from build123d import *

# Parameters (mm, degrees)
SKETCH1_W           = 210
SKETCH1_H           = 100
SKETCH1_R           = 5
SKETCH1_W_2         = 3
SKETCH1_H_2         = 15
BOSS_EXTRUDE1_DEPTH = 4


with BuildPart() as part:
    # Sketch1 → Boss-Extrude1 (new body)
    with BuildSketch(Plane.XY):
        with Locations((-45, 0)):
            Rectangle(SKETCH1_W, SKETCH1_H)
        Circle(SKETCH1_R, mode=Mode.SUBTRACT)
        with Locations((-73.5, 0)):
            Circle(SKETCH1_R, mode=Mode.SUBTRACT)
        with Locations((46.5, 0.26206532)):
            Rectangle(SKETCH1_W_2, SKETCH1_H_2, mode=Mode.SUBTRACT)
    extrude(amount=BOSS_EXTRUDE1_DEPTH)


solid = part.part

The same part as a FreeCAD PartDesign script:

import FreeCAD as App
import Part
import Sketcher
from FreeCAD import Vector
Q = App.Units.Quantity

doc = App.newDocument("Part")
params = doc.addObject("Spreadsheet::Sheet", "Params")
for row, (alias, value) in enumerate([
    ("sketch1_diameter", "10 mm"),
    ("sketch1_width", "210 mm"),
    ("sketch1_width2", "3 mm"),
    ("sketch1_height", "100 mm"),
    ("sketch1_height2", "15 mm"),
    ("pad1_length", "4 mm"),
], start=1):
    params.set(f"A{row}", alias)
    params.set(f"B{row}", "=" + value)
    params.setAlias(f"B{row}", alias)

body = doc.addObject("PartDesign::Body", "Body")

# Sketch on XY plane
sketch1 = body.newObject("Sketcher::SketchObject", "Sketch")
sketch1.AttachmentSupport = (doc.getObject("XY_Plane"), [""])
sketch1.MapMode = "FlatFace"
sketch1.addGeometry(Part.LineSegment(Vector(-150, 50, 0), Vector(-150, -50, 0)), False)
sketch1.addGeometry(Part.LineSegment(Vector(-150, -50, 0), Vector(60, -50, 0)), False)
sketch1.addGeometry(Part.LineSegment(Vector(60, -50, 0), Vector(60, 50, 0)), False)
sketch1.addGeometry(Part.LineSegment(Vector(60, 50, 0), Vector(-150, 50, 0)), False)
sketch1.addGeometry(Part.Circle(Vector(-73.5, 0, 0), Vector(0, 0, 1), 5), False)
sketch1.addGeometry(Part.Circle(Vector(0, 0, 0), Vector(0, 0, 1), 5), False)
sketch1.addGeometry(Part.LineSegment(Vector(48, -7.2, 0), Vector(45, -7.2, 0)), False)
sketch1.addGeometry(Part.LineSegment(Vector(45, -7.2, 0), Vector(45, 7.8, 0)), False)
sketch1.addGeometry(Part.LineSegment(Vector(45, 7.8, 0), Vector(48, 7.8, 0)), False)
sketch1.addGeometry(Part.LineSegment(Vector(48, 7.8, 0), Vector(48, -7.2, 0)), False)
sketch1.addConstraint(Sketcher.Constraint("Coincident", 0, 2, 1, 1))
sketch1.addConstraint(Sketcher.Constraint("Coincident", 1, 2, 2, 1))
sketch1.addConstraint(Sketcher.Constraint("Coincident", 2, 2, 3, 1))
sketch1.addConstraint(Sketcher.Constraint("Coincident", 3, 2, 0, 1))
sketch1.addConstraint(Sketcher.Constraint("Coincident", 6, 2, 7, 1))
sketch1.addConstraint(Sketcher.Constraint("Coincident", 7, 2, 8, 1))
sketch1.addConstraint(Sketcher.Constraint("Coincident", 8, 2, 9, 1))
sketch1.addConstraint(Sketcher.Constraint("Coincident", 9, 2, 6, 1))
sketch1.addConstraint(Sketcher.Constraint("Vertical", 0))
sketch1.addConstraint(Sketcher.Constraint("Horizontal", 1))
sketch1.addConstraint(Sketcher.Constraint("Vertical", 2))
sketch1.addConstraint(Sketcher.Constraint("Horizontal", 3))
sketch1.addConstraint(Sketcher.Constraint("Horizontal", 6))
sketch1.addConstraint(Sketcher.Constraint("Vertical", 7))
sketch1.addConstraint(Sketcher.Constraint("Horizontal", 8))
sketch1.addConstraint(Sketcher.Constraint("Vertical", 9))
sketch1.addConstraint(Sketcher.Constraint("Coincident", 5, 3, -1, 1))
sketch1.addConstraint(Sketcher.Constraint("Equal", 4, 5))
sketch1.addConstraint(Sketcher.Constraint("PointOnObject", 4, 3, -1))
sketch1.addConstraint(Sketcher.Constraint("Diameter", 4, Q("10 mm")))
sketch1.addConstraint(Sketcher.Constraint("DistanceX", 1, 1, 1, 2, Q("210 mm")))
sketch1.addConstraint(Sketcher.Constraint("DistanceX", 6, 2, 6, 1, Q("3 mm")))
sketch1.addConstraint(Sketcher.Constraint("DistanceY", 0, 2, 0, 1, Q("100 mm")))
sketch1.addConstraint(Sketcher.Constraint("DistanceY", 7, 1, 7, 2, Q("15 mm")))
sketch1.addConstraint(Sketcher.Constraint("DistanceX", 0, 2, -1, 1, Q("150 mm")))
sketch1.addConstraint(Sketcher.Constraint("DistanceY", 0, 2, -1, 1, Q("50 mm")))
sketch1.addConstraint(Sketcher.Constraint("DistanceX", -1, 1, 6, 2, Q("45 mm")))
sketch1.addConstraint(Sketcher.Constraint("DistanceX", 4, 3, -1, 1, Q("73.5 mm")))
sketch1.addConstraint(Sketcher.Constraint("DistanceY", 6, 2, -1, 1, Q("7.237935 mm")))
sketch1.setExpression("Constraints[19]", "Params.sketch1_diameter")
sketch1.setExpression("Constraints[20]", "Params.sketch1_width")
sketch1.setExpression("Constraints[21]", "Params.sketch1_width2")
sketch1.setExpression("Constraints[22]", "Params.sketch1_height")
sketch1.setExpression("Constraints[23]", "Params.sketch1_height2")
pad1 = body.newObject("PartDesign::Pad", "Pad")
pad1.Profile = sketch1
pad1.setExpression("Length", "Params.pad1_length")

doc.recompute()
